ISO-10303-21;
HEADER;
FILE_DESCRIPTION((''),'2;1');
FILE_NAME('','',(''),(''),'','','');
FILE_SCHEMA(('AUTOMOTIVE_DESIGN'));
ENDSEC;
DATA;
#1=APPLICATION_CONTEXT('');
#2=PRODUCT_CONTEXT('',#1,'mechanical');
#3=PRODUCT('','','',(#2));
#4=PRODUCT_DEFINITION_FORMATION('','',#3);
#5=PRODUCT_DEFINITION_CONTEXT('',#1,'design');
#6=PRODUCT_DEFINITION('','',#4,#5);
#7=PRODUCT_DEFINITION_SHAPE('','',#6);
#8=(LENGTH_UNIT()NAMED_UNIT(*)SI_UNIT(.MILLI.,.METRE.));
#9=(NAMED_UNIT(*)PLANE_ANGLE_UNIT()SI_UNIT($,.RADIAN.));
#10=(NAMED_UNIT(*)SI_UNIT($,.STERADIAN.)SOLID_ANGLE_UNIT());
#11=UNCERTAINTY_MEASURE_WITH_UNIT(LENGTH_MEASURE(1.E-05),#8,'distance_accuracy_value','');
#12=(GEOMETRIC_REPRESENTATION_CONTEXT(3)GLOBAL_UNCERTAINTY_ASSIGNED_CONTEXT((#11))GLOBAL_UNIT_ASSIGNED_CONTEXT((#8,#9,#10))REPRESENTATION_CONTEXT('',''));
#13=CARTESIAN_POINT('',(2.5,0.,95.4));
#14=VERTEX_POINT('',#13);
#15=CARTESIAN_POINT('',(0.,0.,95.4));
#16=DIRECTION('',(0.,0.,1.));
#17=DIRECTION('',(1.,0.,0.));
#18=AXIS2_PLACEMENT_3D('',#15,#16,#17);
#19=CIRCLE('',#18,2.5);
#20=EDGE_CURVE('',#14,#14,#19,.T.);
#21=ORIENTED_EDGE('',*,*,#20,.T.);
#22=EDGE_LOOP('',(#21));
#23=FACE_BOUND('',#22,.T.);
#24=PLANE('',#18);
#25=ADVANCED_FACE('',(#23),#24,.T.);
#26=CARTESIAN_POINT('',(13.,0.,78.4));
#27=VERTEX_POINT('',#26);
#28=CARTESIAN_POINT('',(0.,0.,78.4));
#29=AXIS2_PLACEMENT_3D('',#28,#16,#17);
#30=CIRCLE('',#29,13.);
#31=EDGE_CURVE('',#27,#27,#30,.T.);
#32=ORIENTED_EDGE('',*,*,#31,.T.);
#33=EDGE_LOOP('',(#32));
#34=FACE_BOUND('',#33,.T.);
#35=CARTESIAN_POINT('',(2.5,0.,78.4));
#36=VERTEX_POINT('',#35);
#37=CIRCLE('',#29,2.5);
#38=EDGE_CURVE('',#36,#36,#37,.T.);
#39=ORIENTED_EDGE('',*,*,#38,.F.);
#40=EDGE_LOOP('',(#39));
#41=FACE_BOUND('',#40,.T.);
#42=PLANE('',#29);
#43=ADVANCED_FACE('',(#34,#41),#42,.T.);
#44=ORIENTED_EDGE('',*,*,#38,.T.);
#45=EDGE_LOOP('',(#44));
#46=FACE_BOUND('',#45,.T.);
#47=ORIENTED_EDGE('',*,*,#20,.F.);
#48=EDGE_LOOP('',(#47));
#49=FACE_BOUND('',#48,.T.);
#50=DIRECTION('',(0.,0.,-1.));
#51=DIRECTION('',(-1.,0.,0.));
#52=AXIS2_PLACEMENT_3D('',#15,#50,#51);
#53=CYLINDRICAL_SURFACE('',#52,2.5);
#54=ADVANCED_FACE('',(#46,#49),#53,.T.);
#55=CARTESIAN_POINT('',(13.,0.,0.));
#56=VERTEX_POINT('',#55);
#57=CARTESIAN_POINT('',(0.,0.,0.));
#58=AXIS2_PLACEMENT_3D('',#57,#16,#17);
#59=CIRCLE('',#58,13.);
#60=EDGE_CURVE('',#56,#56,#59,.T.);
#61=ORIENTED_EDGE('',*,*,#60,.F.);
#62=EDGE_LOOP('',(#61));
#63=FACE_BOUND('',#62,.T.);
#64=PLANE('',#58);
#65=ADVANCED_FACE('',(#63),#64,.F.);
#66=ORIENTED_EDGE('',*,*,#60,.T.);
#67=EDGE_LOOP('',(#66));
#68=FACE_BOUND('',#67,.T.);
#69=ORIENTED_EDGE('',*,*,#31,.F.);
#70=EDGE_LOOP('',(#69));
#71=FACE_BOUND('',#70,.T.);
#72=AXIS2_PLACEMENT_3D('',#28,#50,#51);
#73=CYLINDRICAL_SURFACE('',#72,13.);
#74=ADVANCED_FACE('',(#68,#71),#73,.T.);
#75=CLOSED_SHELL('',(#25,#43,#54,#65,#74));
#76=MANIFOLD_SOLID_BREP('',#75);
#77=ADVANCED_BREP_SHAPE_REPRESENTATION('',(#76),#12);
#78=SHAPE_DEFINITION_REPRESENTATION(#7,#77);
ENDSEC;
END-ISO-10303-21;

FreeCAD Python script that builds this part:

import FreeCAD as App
import Part
import Sketcher
Q = App.Units.Quantity

doc = App.newDocument("Part")
body = doc.addObject("PartDesign::Body", "Body")

# Sketch on XY plane
sketch1 = doc.addObject("Sketcher::SketchObject", "Sketch")
body.addObject(sketch1)
sketch1.AttachmentSupport = (doc.XY_Plane, [""])
sketch1.MapMode = "FlatFace"
sketch1.addGeometry(Part.Circle(App.Vector(0, 0, 0), App.Vector(0, 0, 1), 13), False)
sketch1.addConstraint([
    Sketcher.Constraint("Coincident", 0, 3, -1, 1),
    Sketcher.Constraint("Diameter", 0, Q("26 mm")),
])
pad1 = doc.addObject("PartDesign::Pad", "Pad")
body.addObject(pad1)
pad1.Profile = sketch1
pad1.Length = 78.4

# Sketch on XY plane
sketch2 = doc.addObject("Sketcher::SketchObject", "Sketch001")
body.addObject(sketch2)
sketch2.AttachmentSupport = (doc.XY_Plane, [""])
sketch2.MapMode = "FlatFace"
sketch2.AttachmentOffset = App.Placement(App.Vector(0, 0, 78.4), App.Rotation())
sketch2.addGeometry(Part.Circle(App.Vector(0, 0, 0), App.Vector(0, 0, 1), 2.5), False)
sketch2.addConstraint([
    Sketcher.Constraint("Coincident", 0, 3, -1, 1),
    Sketcher.Constraint("Diameter", 0, Q("5 mm")),
])
pad2 = doc.addObject("PartDesign::Pad", "Pad001")
body.addObject(pad2)
pad2.Profile = sketch2
pad2.Length = 17

doc.recompute()
